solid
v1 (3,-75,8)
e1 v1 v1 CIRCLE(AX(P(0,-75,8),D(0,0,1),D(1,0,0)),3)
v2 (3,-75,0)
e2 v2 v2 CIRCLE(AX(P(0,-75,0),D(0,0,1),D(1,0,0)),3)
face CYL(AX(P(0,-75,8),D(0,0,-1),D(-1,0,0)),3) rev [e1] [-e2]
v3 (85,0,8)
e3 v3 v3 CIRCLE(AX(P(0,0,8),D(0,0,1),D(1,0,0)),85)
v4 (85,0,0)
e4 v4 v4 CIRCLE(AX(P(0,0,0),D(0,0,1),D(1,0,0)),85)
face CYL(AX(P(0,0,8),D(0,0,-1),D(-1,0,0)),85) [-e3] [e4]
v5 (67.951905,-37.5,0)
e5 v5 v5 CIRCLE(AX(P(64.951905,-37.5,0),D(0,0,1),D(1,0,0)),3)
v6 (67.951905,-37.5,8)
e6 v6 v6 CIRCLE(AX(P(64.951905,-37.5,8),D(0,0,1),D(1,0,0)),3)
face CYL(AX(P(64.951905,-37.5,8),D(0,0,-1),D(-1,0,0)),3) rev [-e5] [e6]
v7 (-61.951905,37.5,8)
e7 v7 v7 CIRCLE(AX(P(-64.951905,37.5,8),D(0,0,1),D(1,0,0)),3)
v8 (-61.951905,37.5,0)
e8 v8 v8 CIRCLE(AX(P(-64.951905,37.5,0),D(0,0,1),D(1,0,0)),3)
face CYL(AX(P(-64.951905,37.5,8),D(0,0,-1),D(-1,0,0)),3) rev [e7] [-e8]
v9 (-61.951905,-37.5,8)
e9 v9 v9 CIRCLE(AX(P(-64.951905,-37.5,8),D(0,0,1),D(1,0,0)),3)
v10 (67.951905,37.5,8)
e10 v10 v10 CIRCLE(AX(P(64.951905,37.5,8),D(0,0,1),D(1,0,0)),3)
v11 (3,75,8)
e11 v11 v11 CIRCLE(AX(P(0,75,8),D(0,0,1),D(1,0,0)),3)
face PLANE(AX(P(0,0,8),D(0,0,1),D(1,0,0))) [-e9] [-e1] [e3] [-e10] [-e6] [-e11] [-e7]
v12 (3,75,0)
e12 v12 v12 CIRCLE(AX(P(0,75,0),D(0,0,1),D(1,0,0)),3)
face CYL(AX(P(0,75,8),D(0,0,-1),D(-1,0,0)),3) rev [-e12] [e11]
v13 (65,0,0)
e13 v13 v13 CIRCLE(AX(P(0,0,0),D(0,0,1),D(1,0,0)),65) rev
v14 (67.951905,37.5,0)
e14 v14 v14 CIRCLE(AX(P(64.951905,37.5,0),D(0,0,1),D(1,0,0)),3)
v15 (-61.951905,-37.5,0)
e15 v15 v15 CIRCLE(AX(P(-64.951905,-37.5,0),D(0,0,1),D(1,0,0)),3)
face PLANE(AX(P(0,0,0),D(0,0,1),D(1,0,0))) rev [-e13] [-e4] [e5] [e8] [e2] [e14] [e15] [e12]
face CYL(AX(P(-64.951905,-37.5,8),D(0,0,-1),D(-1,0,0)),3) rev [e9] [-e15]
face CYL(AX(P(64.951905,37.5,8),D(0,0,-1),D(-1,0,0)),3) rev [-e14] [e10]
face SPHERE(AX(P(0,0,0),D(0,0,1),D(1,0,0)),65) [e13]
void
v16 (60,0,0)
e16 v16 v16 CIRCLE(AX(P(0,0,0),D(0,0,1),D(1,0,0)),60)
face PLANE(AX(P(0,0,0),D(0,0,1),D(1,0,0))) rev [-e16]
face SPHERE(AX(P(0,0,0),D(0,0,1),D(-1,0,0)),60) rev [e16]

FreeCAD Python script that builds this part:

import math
import FreeCAD as App
import Part
import Sketcher

doc = App.newDocument("Part")
body = doc.addObject("PartDesign::Body", "Body")

sketch1 = body.newObject("Sketcher::SketchObject", "Sketch")
sketch1.AttachmentSupport = (doc.getObject("XY_Plane"), [""])
sketch1.MapMode = "FlatFace"
sketch1.addGeometry(Part.Circle(App.Vector(0, 0, 0), App.Vector(0, 0, 1), 85), False)
sketch1.addGeometry(Part.Circle(App.Vector(-64.951905, -37.5, 0), App.Vector(0, 0, 1), 3), False)
sketch1.addGeometry(Part.Circle(App.Vector(0, -75, 0), App.Vector(0, 0, 1), 3), False)
sketch1.addGeometry(Part.Circle(App.Vector(64.951905, -37.5, 0), App.Vector(0, 0, 1), 3), False)
sketch1.addGeometry(Part.Circle(App.Vector(-64.951905, 37.5, 0), App.Vector(0, 0, 1), 3), False)
sketch1.addGeometry(Part.Circle(App.Vector(64.951905, 37.5, 0), App.Vector(0, 0, 1), 3), False)
sketch1.addGeometry(Part.Circle(App.Vector(0, 75, 0), App.Vector(0, 0, 1), 3), False)
sketch1.addConstraint(Sketcher.Constraint("Coincident", 0, 3, -1, 1))
sketch1.addConstraint(Sketcher.Constraint("Equal", 1, 2))
sketch1.addConstraint(Sketcher.Constraint("Equal", 2, 3))
sketch1.addConstraint(Sketcher.Constraint("Equal", 3, 4))
sketch1.addConstraint(Sketcher.Constraint("Equal", 4, 5))
sketch1.addConstraint(Sketcher.Constraint("Equal", 5, 6))
sketch1.addConstraint(Sketcher.Constraint("Symmetric", 3, 3, 4, 3, -1, 1))
sketch1.addConstraint(Sketcher.Constraint("Symmetric", 1, 3, 5, 3, -1, 1))
sketch1.addConstraint(Sketcher.Constraint("Symmetric", 2, 3, 6, 3, -1, 1))
sketch1.addConstraint(Sketcher.Constraint("Symmetric", 1, 3, 3, 3, -2))
sketch1.addConstraint(Sketcher.Constraint("PointOnObject", 2, 3, -2))
sketch1.addConstraint(Sketcher.Constraint("Diameter", 0, 170.0))
sketch1.addConstraint(Sketcher.Constraint("Diameter", 1, 6.0))
sketch1.addConstraint(Sketcher.Constraint("DistanceY", 2, 3, -1, 1, 75.0))
sketch1.addConstraint(Sketcher.Constraint("DistanceY", 1, 3, 4, 3, 75.0))
sketch1.addConstraint(Sketcher.Constraint("DistanceX", 1, 3, 3, 3, 129.903811))
pad1 = body.newObject("PartDesign::Pad", "Pad")
pad1.Profile = sketch1
pad1.Length = 8

sketch2 = body.newObject("Sketcher::SketchObject", "Sketch001")
sketch2.AttachmentSupport = (doc.getObject("XZ_Plane"), [""])
sketch2.MapMode = "FlatFace"
sketch2.addGeometry(Part.LineSegment(App.Vector(-65, 0, 0), App.Vector(-60, 0, 0)), False)
sketch2.addGeometry(Part.ArcOfCircle(Part.Circle(App.Vector(0, 0, 0), App.Vector(0, 0, 1), 60), math.radians(-180), math.radians(-90)), False)
sketch2.addGeometry(Part.LineSegment(App.Vector(0, -60, 0), App.Vector(0, -65, 0)), False)
sketch2.addGeometry(Part.ArcOfCircle(Part.Circle(App.Vector(0, 0, 0), App.Vector(0, 0, 1), 65), math.radians(180), math.radians(270)), False)
sketch2.addConstraint(Sketcher.Constraint("Coincident", 0, 2, 1, 1))
sketch2.addConstraint(Sketcher.Constraint("Coincident", 1, 2, 2, 1))
sketch2.addConstraint(Sketcher.Constraint("Coincident", 2, 2, 3, 2))
sketch2.addConstraint(Sketcher.Constraint("Coincident", 3, 1, 0, 1))
sketch2.addConstraint(Sketcher.Constraint("Horizontal", 0))
sketch2.addConstraint(Sketcher.Constraint("Vertical", 2))
sketch2.addConstraint(Sketcher.Constraint("Coincident", 1, 3, -1, 1))
sketch2.addConstraint(Sketcher.Constraint("Coincident", 3, 3, -1, 1))
sketch2.addConstraint(Sketcher.Constraint("PointOnObject", 0, 2, -1))
sketch2.addConstraint(Sketcher.Constraint("PointOnObject", 1, 2, -2))
sketch2.addConstraint(Sketcher.Constraint("Radius", 1, 60.0))
sketch2.addConstraint(Sketcher.Constraint("Radius", 3, 65.0))
revolution = body.newObject("PartDesign::Revolution", "Revolution")
revolution.Profile = sketch2
revolution.ReferenceAxis = (sketch2, ["V_Axis"])
revolution.Angle = 360

doc.recompute()
